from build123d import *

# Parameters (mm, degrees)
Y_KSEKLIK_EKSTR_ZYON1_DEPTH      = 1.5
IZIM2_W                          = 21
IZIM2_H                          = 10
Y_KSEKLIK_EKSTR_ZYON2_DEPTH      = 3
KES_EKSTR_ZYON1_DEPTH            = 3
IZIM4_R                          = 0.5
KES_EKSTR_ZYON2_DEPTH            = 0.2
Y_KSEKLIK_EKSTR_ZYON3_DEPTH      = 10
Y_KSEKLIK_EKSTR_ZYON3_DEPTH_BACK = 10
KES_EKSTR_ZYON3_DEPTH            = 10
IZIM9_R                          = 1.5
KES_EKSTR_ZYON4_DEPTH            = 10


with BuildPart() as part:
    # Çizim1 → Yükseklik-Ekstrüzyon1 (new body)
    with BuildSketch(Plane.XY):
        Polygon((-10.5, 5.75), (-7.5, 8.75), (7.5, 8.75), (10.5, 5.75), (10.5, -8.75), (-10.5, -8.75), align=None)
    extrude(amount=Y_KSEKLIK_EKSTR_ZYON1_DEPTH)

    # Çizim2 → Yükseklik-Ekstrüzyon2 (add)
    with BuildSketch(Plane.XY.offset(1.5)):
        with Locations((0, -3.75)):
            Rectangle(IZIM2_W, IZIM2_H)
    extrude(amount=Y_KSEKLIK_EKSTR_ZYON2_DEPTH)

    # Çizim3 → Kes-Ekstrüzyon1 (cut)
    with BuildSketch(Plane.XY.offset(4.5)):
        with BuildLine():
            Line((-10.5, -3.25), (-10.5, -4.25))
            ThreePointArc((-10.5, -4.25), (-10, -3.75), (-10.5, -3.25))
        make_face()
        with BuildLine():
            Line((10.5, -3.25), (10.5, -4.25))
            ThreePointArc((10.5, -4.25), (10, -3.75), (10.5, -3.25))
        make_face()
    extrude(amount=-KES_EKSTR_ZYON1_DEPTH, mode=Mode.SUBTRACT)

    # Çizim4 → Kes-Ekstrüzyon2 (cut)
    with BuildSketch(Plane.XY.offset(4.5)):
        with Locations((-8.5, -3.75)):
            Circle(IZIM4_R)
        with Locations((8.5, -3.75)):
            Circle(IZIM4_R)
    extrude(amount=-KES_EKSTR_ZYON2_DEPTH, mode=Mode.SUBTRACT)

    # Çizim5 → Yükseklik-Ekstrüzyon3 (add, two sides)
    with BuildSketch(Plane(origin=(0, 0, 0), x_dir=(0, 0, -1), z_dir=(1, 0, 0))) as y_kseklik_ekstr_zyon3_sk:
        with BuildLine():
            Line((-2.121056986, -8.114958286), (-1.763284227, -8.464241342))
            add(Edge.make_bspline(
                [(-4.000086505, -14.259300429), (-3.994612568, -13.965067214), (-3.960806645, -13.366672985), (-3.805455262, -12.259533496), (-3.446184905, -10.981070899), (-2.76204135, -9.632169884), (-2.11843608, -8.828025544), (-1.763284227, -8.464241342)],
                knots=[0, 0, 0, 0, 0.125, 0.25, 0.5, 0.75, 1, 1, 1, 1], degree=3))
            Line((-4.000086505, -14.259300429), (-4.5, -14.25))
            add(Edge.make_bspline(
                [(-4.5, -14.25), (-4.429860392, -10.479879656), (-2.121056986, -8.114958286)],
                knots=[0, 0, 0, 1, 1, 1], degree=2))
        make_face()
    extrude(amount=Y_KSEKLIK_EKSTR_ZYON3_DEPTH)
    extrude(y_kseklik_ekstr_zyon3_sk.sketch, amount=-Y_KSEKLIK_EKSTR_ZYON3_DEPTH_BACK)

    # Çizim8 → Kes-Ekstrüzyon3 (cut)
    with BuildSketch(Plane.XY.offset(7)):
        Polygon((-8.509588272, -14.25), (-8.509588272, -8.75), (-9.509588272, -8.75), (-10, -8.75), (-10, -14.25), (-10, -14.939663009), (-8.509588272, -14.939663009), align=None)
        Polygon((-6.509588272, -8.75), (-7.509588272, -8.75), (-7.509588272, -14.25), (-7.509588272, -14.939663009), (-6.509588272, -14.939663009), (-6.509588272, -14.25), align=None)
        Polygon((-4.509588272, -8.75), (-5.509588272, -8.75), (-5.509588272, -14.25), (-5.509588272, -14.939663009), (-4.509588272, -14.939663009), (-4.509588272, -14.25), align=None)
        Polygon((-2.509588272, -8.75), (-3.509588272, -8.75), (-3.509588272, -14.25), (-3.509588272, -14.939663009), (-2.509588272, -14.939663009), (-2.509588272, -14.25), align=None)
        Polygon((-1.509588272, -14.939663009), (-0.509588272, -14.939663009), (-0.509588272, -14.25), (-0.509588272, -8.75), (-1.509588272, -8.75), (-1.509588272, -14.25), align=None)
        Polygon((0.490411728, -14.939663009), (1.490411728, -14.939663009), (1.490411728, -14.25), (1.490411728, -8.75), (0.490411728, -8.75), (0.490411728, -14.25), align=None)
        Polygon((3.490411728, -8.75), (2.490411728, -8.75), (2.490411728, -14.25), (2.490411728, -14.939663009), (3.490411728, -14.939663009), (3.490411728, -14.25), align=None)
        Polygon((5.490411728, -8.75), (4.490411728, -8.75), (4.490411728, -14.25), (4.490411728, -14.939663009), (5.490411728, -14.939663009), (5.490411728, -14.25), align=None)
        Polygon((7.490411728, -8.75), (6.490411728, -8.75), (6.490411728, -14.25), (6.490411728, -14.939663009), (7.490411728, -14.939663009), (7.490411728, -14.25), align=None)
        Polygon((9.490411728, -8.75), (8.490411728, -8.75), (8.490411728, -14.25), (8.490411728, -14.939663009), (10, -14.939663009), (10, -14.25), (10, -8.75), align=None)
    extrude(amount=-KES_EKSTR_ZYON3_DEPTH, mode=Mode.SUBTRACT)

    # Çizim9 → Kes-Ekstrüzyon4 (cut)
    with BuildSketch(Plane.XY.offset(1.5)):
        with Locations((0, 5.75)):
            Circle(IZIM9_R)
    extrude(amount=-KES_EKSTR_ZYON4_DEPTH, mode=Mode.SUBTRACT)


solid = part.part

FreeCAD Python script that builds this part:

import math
import FreeCAD as App
import Part
import Sketcher
from FreeCAD import Vector
Q = App.Units.Quantity

doc = App.newDocument("Part")
params = doc.addObject("Spreadsheet::Sheet", "Params")
for row, (alias, value) in enumerate([
    ("sketch1_width", "21 mm"),
    ("sketch1_width2", "15 mm"),
    ("sketch1_height", "14.5 mm"),
    ("pad1_length", "1.5 mm"),
    ("sketch2_width", "21 mm"),
    ("sketch2_height", "10 mm"),
    ("pad2_length", "3 mm"),
    ("sketch3_radius", "0.5 mm"),
    ("pocket1_length", "3 mm"),
    ("sketch4_diameter", "1 mm"),
    ("pocket2_length", "0.2 mm"),
    ("pad3_length", "10 mm"),
    ("pad3_length2", "10 mm"),
    ("sketch6_width", "1 mm"),
    ("pocket3_length", "10 mm"),
    ("sketch7_diameter", "3 mm"),
    ("pocket4_length", "10 mm"),
], start=1):
    params.set(f"A{row}", alias)
    params.set(f"B{row}", "=" + value)
    params.setAlias(f"B{row}", alias)

body = doc.addObject("PartDesign::Body", "Body")

# Sketch on XY plane
sketch1 = body.newObject("Sketcher::SketchObject", "Sketch")
sketch1.AttachmentSupport = (doc.getObject("XY_Plane"), [""])
sketch1.MapMode = "FlatFace"
sketch1.addGeometry([
    Part.LineSegment(Vector(-7.5, 8.8, 0), Vector(-10.5, 5.8, 0)),  # 0
    Part.LineSegment(Vector(-10.5, 5.8, 0), Vector(-10.5, -8.8, 0)),  # 1
    Part.LineSegment(Vector(-10.5, -8.8, 0), Vector(10.5, -8.8, 0)),  # 2
    Part.LineSegment(Vector(10.5, -8.8, 0), Vector(10.5, 5.8, 0)),  # 3
    Part.LineSegment(Vector(10.5, 5.8, 0), Vector(7.5, 8.8, 0)),  # 4
    Part.LineSegment(Vector(7.5, 8.8, 0), Vector(-7.5, 8.8, 0)),  # 5
], False)
sketch1.addConstraint([
    Sketcher.Constraint("Coincident", 0, 2, 1, 1),
    Sketcher.Constraint("Coincident", 1, 2, 2, 1),
    Sketcher.Constraint("Coincident", 2, 2, 3, 1),
    Sketcher.Constraint("Coincident", 3, 2, 4, 1),
    Sketcher.Constraint("Coincident", 4, 2, 5, 1),
    Sketcher.Constraint("Coincident", 5, 2, 0, 1),
    Sketcher.Constraint("Vertical", 1),
    Sketcher.Constraint("Horizontal", 2),
    Sketcher.Constraint("Vertical", 3),
    Sketcher.Constraint("Horizontal", 5),
    Sketcher.Constraint("Symmetric", 0, 2, 3, 2, -2),
    Sketcher.Constraint("Perpendicular", 0, 4),
    Sketcher.Constraint("Equal", 0, 4),
    Sketcher.Constraint("DistanceX", 2, 1, 2, 2, Q("21 mm")),
    Sketcher.Constraint("DistanceX", 5, 2, 5, 1, Q("15 mm")),
    Sketcher.Constraint("DistanceY", 1, 2, 1, 1, Q("14.5 mm")),
    Sketcher.Constraint("DistanceY", -1, 1, 0, 2, Q("5.75 mm")),
])
sketch1.setExpression("Constraints[13]", "Params.sketch1_width")
sketch1.setExpression("Constraints[14]", "Params.sketch1_width2")
sketch1.setExpression("Constraints[15]", "Params.sketch1_height")
pad1 = body.newObject("PartDesign::Pad", "Pad")
pad1.Profile = sketch1
pad1.setExpression("Length", "Params.pad1_length")

# Sketch on XY plane
sketch2 = body.newObject("Sketcher::SketchObject", "Sketch001")
sketch2.AttachmentSupport = (doc.getObject("XY_Plane"), [""])
sketch2.MapMode = "FlatFace"
sketch2.AttachmentOffset = App.Placement(Vector(0, 0, 1.5), App.Rotation())
sketch2.addGeometry([
    Part.LineSegment(Vector(-10, 1, 0), Vector(-10, -9, 0)),
    Part.LineSegment(Vector(-10, -9, 0), Vector(10, -9, 0)),
    Part.LineSegment(Vector(10, -9, 0), Vector(10, 1, 0)),
    Part.LineSegment(Vector(10, 1, 0), Vector(-10, 1, 0)),
], False)
sketch2.addConstraint([
    Sketcher.Constraint("Coincident", 0, 2, 1, 1),
    Sketcher.Constraint("Coincident", 1, 2, 2, 1),
    Sketcher.Constraint("Coincident", 2, 2, 3, 1),
    Sketcher.Constraint("Coincident", 3, 2, 0, 1),
    Sketcher.Constraint("Vertical", 0),
    Sketcher.Constraint("Horizontal", 1),
    Sketcher.Constraint("Vertical", 2),
    Sketcher.Constraint("Horizontal", 3),
    Sketcher.Constraint("DistanceX", 1, 1, 1, 2, Q("21 mm")),
    Sketcher.Constraint("DistanceY", 0, 2, 0, 1, Q("10 mm")),
    Sketcher.Constraint("DistanceX", 0, 2, -1, 1, Q("10.5 mm")),
    Sketcher.Constraint("DistanceY", 0, 2, -1, 1, Q("8.75 mm")),
])
sketch2.setExpression("Constraints[8]", "Params.sketch2_width")
sketch2.setExpression("Constraints[9]", "Params.sketch2_height")
pad2 = body.newObject("PartDesign::Pad", "Pad001")
pad2.Profile = sketch2
pad2.setExpression("Length", "Params.pad2_length")

# Sketch on XY plane
sketch3 = body.newObject("Sketcher::SketchObject", "Sketch002")
sketch3.AttachmentSupport = (doc.getObject("XY_Plane"), [""])
sketch3.MapMode = "FlatFace"
sketch3.AttachmentOffset = App.Placement(Vector(0, 0, 4.5), App.Rotation())
sketch3.addGeometry([
    Part.LineSegment(Vector(-10.5, -3.2, 0), Vector(-10.5, -4.2, 0)),
    Part.ArcOfCircle(Part.Circle(Vector(-10.5, -3.8, 0), Vector(0, 0, 1), 0.5), math.radians(-90), math.radians(90)),
    Part.LineSegment(Vector(10.5, -4.2, 0), Vector(10.5, -3.2, 0)),
    Part.ArcOfCircle(Part.Circle(Vector(10.5, -3.8, 0), Vector(0, 0, 1), 0.5), math.radians(90), math.radians(270)),
], False)
sketch3.addConstraint([
    Sketcher.Constraint("Coincident", 0, 1, 1, 2),
    Sketcher.Constraint("Coincident", 1, 1, 0, 2),
    Sketcher.Constraint("Coincident", 2, 1, 3, 2),
    Sketcher.Constraint("Coincident", 3, 1, 2, 2),
    Sketcher.Constraint("Vertical", 0),
    Sketcher.Constraint("Vertical", 2),
    Sketcher.Constraint("Equal", 1, 3),
    Sketcher.Constraint("Symmetric", 1, 3, 3, 3, -2),
    Sketcher.Constraint("Vertical", 1, 3, 0, 1),
    Sketcher.Constraint("Vertical", 3, 3, 2, 1),
    Sketcher.Constraint("Radius", 1, Q("0.5 mm")),
    Sketcher.Constraint("DistanceX", 1, 3, 3, 3, Q("21 mm")),
    Sketcher.Constraint("DistanceY", 1, 3, -1, 1, Q("3.75 mm")),
])
sketch3.setExpression("Constraints[10]", "Params.sketch3_radius")
pocket1 = body.newObject("PartDesign::Pocket", "Pocket")
pocket1.Profile = sketch3
pocket1.setExpression("Length", "Params.pocket1_length")

# Sketch on XY plane
sketch4 = body.newObject("Sketcher::SketchObject", "Sketch003")
sketch4.AttachmentSupport = (doc.getObject("XY_Plane"), [""])
sketch4.MapMode = "FlatFace"
sketch4.AttachmentOffset = App.Placement(Vector(0, 0, 4.5), App.Rotation())
sketch4.addGeometry([
    Part.Circle(Vector(-8.5, -3.8, 0), Vector(0, 0, 1), 0.5),
    Part.Circle(Vector(8.5, -3.8, 0), Vector(0, 0, 1), 0.5),
], False)
sketch4.addConstraint([
    Sketcher.Constraint("Equal", 0, 1),
    Sketcher.Constraint("Symmetric", 0, 3, 1, 3, -2),
    Sketcher.Constraint("Diameter", 0, Q("1 mm")),
    Sketcher.Constraint("DistanceX", 0, 3, 1, 3, Q("17 mm")),
    Sketcher.Constraint("DistanceY", 0, 3, -1, 1, Q("3.75 mm")),
])
sketch4.setExpression("Constraints[2]", "Params.sketch4_diameter")
pocket2 = body.newObject("PartDesign::Pocket", "Pocket001")
pocket2.Profile = sketch4
pocket2.setExpression("Length", "Params.pocket2_length")

# Sketch on YZ plane
sketch5 = body.newObject("Sketcher::SketchObject", "Sketch004")
sketch5.AttachmentSupport = (doc.getObject("YZ_Plane"), [""])
sketch5.MapMode = "FlatFace"
sketch5.addGeometry([
    Part.LineSegment(Vector(-8.464241, 1.763284, 0), Vector(-8.114958, 2.121057, 0)),
    Part.BSplineCurve([Vector(-14.25, 4.5, 0), Vector(-10.47988, 4.42986, 0), Vector(-8.114958, 2.121057, 0)], [3, 3], [0, 1], False, 2, [1, 1, 1], False),
    Part.LineSegment(Vector(-14.25, 4.5, 0), Vector(-14.2593, 4.000087, 0)),
    Part.BSplineCurve([Vector(-14.2593, 4.000087, 0), Vector(-13.965067, 3.994613, 0), Vector(-13.366673, 3.960807, 0), Vector(-12.259533, 3.805455, 0), Vector(-10.981071, 3.446185, 0), Vector(-9.63217, 2.762041, 0), Vector(-8.828026, 2.118436, 0), Vector(-8.464241, 1.763284, 0)], [4, 1, 1, 1, 1, 4], [0, 0.125, 0.25, 0.5, 0.75, 1], False, 3, [1, 1, 1, 1, 1, 1, 1, 1], False),
], False)
sketch5.addConstraint([
    Sketcher.Constraint("Block", 1),
    Sketcher.Constraint("Block", 3),
    Sketcher.Constraint("Coincident", 0, 2, 1, 2),
    Sketcher.Constraint("Coincident", 1, 1, 2, 1),
    Sketcher.Constraint("Coincident", 2, 2, 3, 1),
    Sketcher.Constraint("Coincident", 3, 2, 0, 1),
])
pad3 = body.newObject("PartDesign::Pad", "Pad002")
pad3.Profile = sketch5
pad3.Type = "TwoLengths"
pad3.setExpression("Length", "Params.pad3_length")
pad3.setExpression("Length2", "Params.pad3_length2")

# Sketch on XY plane
sketch6 = body.newObject("Sketcher::SketchObject", "Sketch005")
sketch6.AttachmentSupport = (doc.getObject("XY_Plane"), [""])
sketch6.MapMode = "FlatFace"
sketch6.AttachmentOffset = App.Placement(Vector(0, 0, 7), App.Rotation())
sketch6.addGeometry([
    Part.LineSegment(Vector(-8.5, -8.8, 0), Vector(-10, -8.8, 0)),  # 0
    Part.LineSegment(Vector(-10, -8.8, 0), Vector(-10, -14.9, 0)),  # 1
    Part.LineSegment(Vector(-10, -14.9, 0), Vector(-8.5, -14.9, 0)),  # 2
    Part.LineSegment(Vector(-8.5, -14.9, 0), Vector(-8.5, -8.8, 0)),  # 3
    Part.LineSegment(Vector(-6.5, -8.8, 0), Vector(-7.5, -8.8, 0)),  # 4
    Part.LineSegment(Vector(-7.5, -8.8, 0), Vector(-7.5, -14.9, 0)),  # 5
    Part.LineSegment(Vector(-7.5, -14.9, 0), Vector(-6.5, -14.9, 0)),  # 6
    Part.LineSegment(Vector(-6.5, -14.9, 0), Vector(-6.5, -8.8, 0)),  # 7
    Part.LineSegment(Vector(-4.5, -8.8, 0), Vector(-5.5, -8.8, 0)),  # 8
    Part.LineSegment(Vector(-5.5, -8.8, 0), Vector(-5.5, -14.9, 0)),  # 9
    Part.LineSegment(Vector(-5.5, -14.9, 0), Vector(-4.5, -14.9, 0)),  # 10
    Part.LineSegment(Vector(-4.5, -14.9, 0), Vector(-4.5, -8.8, 0)),  # 11
    Part.LineSegment(Vector(-2.5, -8.8, 0), Vector(-3.5, -8.8, 0)),  # 12
    Part.LineSegment(Vector(-3.5, -8.8, 0), Vector(-3.5, -14.9, 0)),  # 13
    Part.LineSegment(Vector(-3.5, -14.9, 0), Vector(-2.5, -14.9, 0)),  # 14
    Part.LineSegment(Vector(-2.5, -14.9, 0), Vector(-2.5, -8.8, 0)),  # 15
    Part.LineSegment(Vector(-1.5, -14.9, 0), Vector(-0.5, -14.9, 0)),  # 16
    Part.LineSegment(Vector(-0.5, -14.9, 0), Vector(-0.5, -8.8, 0)),  # 17
    Part.LineSegment(Vector(-0.5, -8.8, 0), Vector(-1.5, -8.8, 0)),  # 18
    Part.LineSegment(Vector(-1.5, -8.8, 0), Vector(-1.5, -14.9, 0)),  # 19
    Part.LineSegment(Vector(0.5, -14.9, 0), Vector(1.5, -14.9, 0)),  # 20
    Part.LineSegment(Vector(1.5, -14.9, 0), Vector(1.5, -8.8, 0)),  # 21
    Part.LineSegment(Vector(1.5, -8.8, 0), Vector(0.5, -8.8, 0)),  # 22
    Part.LineSegment(Vector(0.5, -8.8, 0), Vector(0.5, -14.9, 0)),  # 23
    Part.LineSegment(Vector(3.5, -8.8, 0), Vector(2.5, -8.8, 0)),  # 24
    Part.LineSegment(Vector(2.5, -8.8, 0), Vector(2.5, -14.9, 0)),  # 25
    Part.LineSegment(Vector(2.5, -14.9, 0), Vector(3.5, -14.9, 0)),  # 26
    Part.LineSegment(Vector(3.5, -14.9, 0), Vector(3.5, -8.8, 0)),  # 27
    Part.LineSegment(Vector(5.5, -8.8, 0), Vector(4.5, -8.8, 0)),  # 28
    Part.LineSegment(Vector(4.5, -8.8, 0), Vector(4.5, -14.9, 0)),  # 29
    Part.LineSegment(Vector(4.5, -14.9, 0), Vector(5.5, -14.9, 0)),  # 30
    Part.LineSegment(Vector(5.5, -14.9, 0), Vector(5.5, -8.8, 0)),  # 31
    Part.LineSegment(Vector(7.5, -8.8, 0), Vector(6.5, -8.8, 0)),  # 32
    Part.LineSegment(Vector(6.5, -8.8, 0), Vector(6.5, -14.9, 0)),  # 33
    Part.LineSegment(Vector(6.5, -14.9, 0), Vector(7.5, -14.9, 0)),  # 34
    Part.LineSegment(Vector(7.5, -14.9, 0), Vector(7.5, -8.8, 0)),  # 35
    Part.LineSegment(Vector(8.5, -8.8, 0), Vector(8.5, -14.9, 0)),  # 36
    Part.LineSegment(Vector(8.5, -14.9, 0), Vector(10, -14.9, 0)),  # 37
    Part.LineSegment(Vector(10, -14.9, 0), Vector(10, -8.8, 0)),  # 38
    Part.LineSegment(Vector(10, -8.8, 0), Vector(8.5, -8.8, 0)),  # 39
], False)
sketch6.addConstraint([
    Sketcher.Constraint("Coincident", 0, 2, 1, 1),
    Sketcher.Constraint("Coincident", 1, 2, 2, 1),
    Sketcher.Constraint("Coincident", 2, 2, 3, 1),
    Sketcher.Constraint("Coincident", 3, 2, 0, 1),
    Sketcher.Constraint("Coincident", 4, 2, 5, 1),
    Sketcher.Constraint("Coincident", 5, 2, 6, 1),
    Sketcher.Constraint("Coincident", 6, 2, 7, 1),
    Sketcher.Constraint("Coincident", 7, 2, 4, 1),
    Sketcher.Constraint("Coincident", 8, 2, 9, 1),
    Sketcher.Constraint("Coincident", 9, 2, 10, 1),
    Sketcher.Constraint("Coincident", 10, 2, 11, 1),
    Sketcher.Constraint("Coincident", 11, 2, 8, 1),
    Sketcher.Constraint("Coincident", 12, 2, 13, 1),
    Sketcher.Constraint("Coincident", 13, 2, 14, 1),
    Sketcher.Constraint("Coincident", 14, 2, 15, 1),
    Sketcher.Constraint("Coincident", 15, 2, 12, 1),
    Sketcher.Constraint("Coincident", 16, 2, 17, 1),
    Sketcher.Constraint("Coincident", 17, 2, 18, 1),
    Sketcher.Constraint("Coincident", 18, 2, 19, 1),
    Sketcher.Constraint("Coincident", 19, 2, 16, 1),
    Sketcher.Constraint("Coincident", 20, 2, 21, 1),
    Sketcher.Constraint("Coincident", 21, 2, 22, 1),
    Sketcher.Constraint("Coincident", 22, 2, 23, 1),
    Sketcher.Constraint("Coincident", 23, 2, 20, 1),
    Sketcher.Constraint("Coincident", 24, 2, 25, 1),
    Sketcher.Constraint("Coincident", 25, 2, 26, 1),
    Sketcher.Constraint("Coincident", 26, 2, 27, 1),
    Sketcher.Constraint("Coincident", 27, 2, 24, 1),
    Sketcher.Constraint("Coincident", 28, 2, 29, 1),
    Sketcher.Constraint("Coincident", 29, 2, 30, 1),
    Sketcher.Constraint("Coincident", 30, 2, 31, 1),
    Sketcher.Constraint("Coincident", 31, 2, 28, 1),
    Sketcher.Constraint("Coincident", 32, 2, 33, 1),
    Sketcher.Constraint("Coincident", 33, 2, 34, 1),
    Sketcher.Constraint("Coincident", 34, 2, 35, 1),
    Sketcher.Constraint("Coincident", 35, 2, 32, 1),
    Sketcher.Constraint("Coincident", 36, 2, 37, 1),
    Sketcher.Constraint("Coincident", 37, 2, 38, 1),
    Sketcher.Constraint("Coincident", 38, 2, 39, 1),
    Sketcher.Constraint("Coincident", 39, 2, 36, 1),
    Sketcher.Constraint("Horizontal", 0),
    Sketcher.Constraint("Vertical", 1),
    Sketcher.Constraint("Horizontal", 2),
    Sketcher.Constraint("Vertical", 3),
    Sketcher.Constraint("Horizontal", 4),
    Sketcher.Constraint("Vertical", 5),
    Sketcher.Constraint("Horizontal", 6),
    Sketcher.Constraint("Vertical", 7),
    Sketcher.Constraint("Horizontal", 8),
    Sketcher.Constraint("Vertical", 9),
    Sketcher.Constraint("Horizontal", 10),
    Sketcher.Constraint("Vertical", 11),
    Sketcher.Constraint("Horizontal", 12),
    Sketcher.Constraint("Vertical", 13),
    Sketcher.Constraint("Horizontal", 14),
    Sketcher.Constraint("Vertical", 15),
    Sketcher.Constraint("Horizontal", 16),
    Sketcher.Constraint("Vertical", 17),
    Sketcher.Constraint("Horizontal", 18),
    Sketcher.Constraint("Vertical", 19),
    Sketcher.Constraint("Horizontal", 20),
    Sketcher.Constraint("Vertical", 21),
    Sketcher.Constraint("Horizontal", 22),
    Sketcher.Constraint("Vertical", 23),
    Sketcher.Constraint("Horizontal", 24),
    Sketcher.Constraint("Vertical", 25),
    Sketcher.Constraint("Horizontal", 26),
    Sketcher.Constraint("Vertical", 27),
    Sketcher.Constraint("Horizontal", 28),
    Sketcher.Constraint("Vertical", 29),
    Sketcher.Constraint("Horizontal", 30),
    Sketcher.Constraint("Vertical", 31),
    Sketcher.Constraint("Horizontal", 32),
    Sketcher.Constraint("Vertical", 33),
    Sketcher.Constraint("Horizontal", 34),
    Sketcher.Constraint("Vertical", 35),
    Sketcher.Constraint("Vertical", 36),
    Sketcher.Constraint("Horizontal", 37),
    Sketcher.Constraint("Vertical", 38),
    Sketcher.Constraint("Horizontal", 39),
    Sketcher.Constraint("Symmetric", 1, 2, 37, 2, -2),
    Sketcher.Constraint("Horizontal", 3, 2, 4, 2),
    Sketcher.Constraint("Horizontal", 2, 2, 5, 2),
    Sketcher.Constraint("Horizontal", 7, 2, 8, 2),
    Sketcher.Constraint("Horizontal", 6, 2, 9, 2),
    Sketcher.Constraint("Horizontal", 11, 2, 12, 2),
    Sketcher.Constraint("Horizontal", 10, 2, 13, 2),
    Sketcher.Constraint("Horizontal", 14, 2, 16, 2),
    Sketcher.Constraint("Horizontal", 15, 2, 17, 2),
    Sketcher.Constraint("Horizontal", 19, 2, 20, 2),
    Sketcher.Constraint("Horizontal", 18, 2, 21, 2),
    Sketcher.Constraint("Horizontal", 22, 2, 24, 2),
    Sketcher.Constraint("Horizontal", 23, 2, 25, 2),
    Sketcher.Constraint("Horizontal", 27, 2, 28, 2),
    Sketcher.Constraint("Horizontal", 26, 2, 29, 2),
    Sketcher.Constraint("Horizontal", 31, 2, 32, 2),
    Sketcher.Constraint("Horizontal", 30, 2, 33, 2),
    Sketcher.Constraint("Horizontal", 35, 2, 38, 2),
    Sketcher.Constraint("Equal", 6, 8),
    Sketcher.Constraint("Equal", 10, 12),
    Sketcher.Constraint("Equal", 14, 16),
    Sketcher.Constraint("Equal", 18, 20),
    Sketcher.Constraint("Equal", 22, 24),
    Sketcher.Constraint("Equal", 26, 28),
    Sketcher.Constraint("Equal", 30, 32),
    Sketcher.Constraint("DistanceX", 4, 2, 4, 1, Q("1 mm")),
    Sketcher.Constraint("DistanceX", 0, 2, -1, 1, Q("10 mm")),
    Sketcher.Constraint("DistanceX", 3, 2, 4, 2, Q("1 mm")),
    Sketcher.Constraint("DistanceX", 7, 2, 8, 2, Q("1 mm")),
    Sketcher.Constraint("DistanceX", 11, 2, 12, 2, Q("1 mm")),
    Sketcher.Constraint("DistanceX", 14, 2, 16, 2, Q("2 mm")),
    Sketcher.Constraint("DistanceX", 16, 2, 20, 2, Q("2 mm")),
    Sketcher.Constraint("DistanceX", 21, 2, 24, 2, Q("1 mm")),
    Sketcher.Constraint("DistanceX", 27, 2, 28, 2, Q("1 mm")),
    Sketcher.Constraint("DistanceX", 31, 2, 32, 2, Q("1 mm")),
    Sketcher.Constraint("DistanceX", 34, 2, 36, 2, Q("1 mm")),
    Sketcher.Constraint("DistanceY", 0, 2, -1, 1, Q("8.75 mm")),
    Sketcher.Constraint("DistanceX", 0, 2, 0, 1, Q("1.490412 mm")),
    Sketcher.Constraint("DistanceY", 1, 2, 1, 1, Q("6.189663 mm")),
])
sketch6.setExpression("Constraints[105]", "Params.sketch6_width")
pocket3 = body.newObject("PartDesign::Pocket", "Pocket002")
pocket3.Profile = sketch6
pocket3.setExpression("Length", "Params.pocket3_length")

# Sketch on XY plane
sketch7 = body.newObject("Sketcher::SketchObject", "Sketch006")
sketch7.AttachmentSupport = (doc.getObject("XY_Plane"), [""])
sketch7.MapMode = "FlatFace"
sketch7.AttachmentOffset = App.Placement(Vector(0, 0, 1.5), App.Rotation())
sketch7.addGeometry(Part.Circle(Vector(0, 5.8, 0), Vector(0, 0, 1), 1.5), False)
sketch7.addConstraint([
    Sketcher.Constraint("PointOnObject", 0, 3, -2),
    Sketcher.Constraint("Diameter", 0, Q("3 mm")),
    Sketcher.Constraint("DistanceY", -1, 1, 0, 3, Q("5.75 mm")),
])
sketch7.setExpression("Constraints[1]", "Params.sketch7_diameter")
pocket4 = body.newObject("PartDesign::Pocket", "Pocket003")
pocket4.Profile = sketch7
pocket4.setExpression("Length", "Params.pocket4_length")

doc.recompute()
